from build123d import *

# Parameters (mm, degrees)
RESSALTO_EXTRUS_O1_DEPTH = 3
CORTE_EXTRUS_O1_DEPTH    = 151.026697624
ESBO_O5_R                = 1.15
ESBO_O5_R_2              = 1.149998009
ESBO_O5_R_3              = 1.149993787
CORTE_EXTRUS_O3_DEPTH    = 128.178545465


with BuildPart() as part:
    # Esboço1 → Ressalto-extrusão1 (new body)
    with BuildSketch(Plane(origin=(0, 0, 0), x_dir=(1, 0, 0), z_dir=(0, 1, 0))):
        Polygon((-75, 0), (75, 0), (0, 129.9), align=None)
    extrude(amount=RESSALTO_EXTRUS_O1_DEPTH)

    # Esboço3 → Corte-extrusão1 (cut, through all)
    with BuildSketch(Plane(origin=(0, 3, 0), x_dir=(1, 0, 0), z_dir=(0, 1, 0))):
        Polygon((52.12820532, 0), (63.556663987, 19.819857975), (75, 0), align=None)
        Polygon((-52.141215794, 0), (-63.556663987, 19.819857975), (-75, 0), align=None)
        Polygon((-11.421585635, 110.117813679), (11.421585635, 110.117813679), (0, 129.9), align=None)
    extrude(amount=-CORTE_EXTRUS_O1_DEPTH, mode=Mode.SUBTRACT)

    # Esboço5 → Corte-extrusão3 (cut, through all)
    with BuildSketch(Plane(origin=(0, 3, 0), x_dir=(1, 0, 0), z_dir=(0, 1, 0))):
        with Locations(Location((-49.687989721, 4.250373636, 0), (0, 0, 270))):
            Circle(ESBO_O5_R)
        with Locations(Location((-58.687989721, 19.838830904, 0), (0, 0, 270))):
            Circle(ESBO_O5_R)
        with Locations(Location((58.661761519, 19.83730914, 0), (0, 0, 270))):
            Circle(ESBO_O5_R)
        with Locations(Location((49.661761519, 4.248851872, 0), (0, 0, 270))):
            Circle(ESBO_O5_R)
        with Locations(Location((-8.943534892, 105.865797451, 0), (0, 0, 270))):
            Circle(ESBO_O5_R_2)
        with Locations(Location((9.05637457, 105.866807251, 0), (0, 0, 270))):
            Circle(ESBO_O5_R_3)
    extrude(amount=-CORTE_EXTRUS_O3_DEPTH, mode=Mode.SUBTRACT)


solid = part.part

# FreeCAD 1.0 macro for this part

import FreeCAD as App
import Part
import Sketcher

V = App.Vector
Q = App.Units.Quantity

doc = App.newDocument("Part")
body = doc.addObject("PartDesign::Body", "Body")

# Sketch on XZ plane
sketch1 = body.newObject("Sketcher::SketchObject", "Sketch")
sketch1.AttachmentSupport = (doc.getObject("XZ_Plane"), [""])
sketch1.MapMode = "FlatFace"
sketch1.addGeometry(Part.LineSegment(V(-75, 0, 0), V(75, 0, 0)), False)
sketch1.addGeometry(Part.LineSegment(V(75, 0, 0), V(0, -130, 0)), False)
sketch1.addGeometry(Part.LineSegment(V(0, -130, 0), V(-75, 0, 0)), False)
sketch1.addConstraint(Sketcher.Constraint("Coincident", 0, 2, 1, 1))
sketch1.addConstraint(Sketcher.Constraint("Coincident", 1, 2, 2, 1))
sketch1.addConstraint(Sketcher.Constraint("Coincident", 2, 2, 0, 1))
sketch1.addConstraint(Sketcher.Constraint("Horizontal", 0))
sketch1.addConstraint(Sketcher.Constraint("Symmetric", 0, 2, 2, 2, -1, 1))
sketch1.addConstraint(Sketcher.Constraint("PointOnObject", 1, 2, -2))
sketch1.addConstraint(Sketcher.Constraint("DistanceX", 0, 1, 0, 2, Q("150 mm")))
sketch1.addConstraint(Sketcher.Constraint("DistanceY", 1, 2, -1, 1, Q("129.9 mm")))
pad1 = body.newObject("PartDesign::Pad", "Pad")
pad1.Profile = sketch1
pad1.Length = 3
pad1.Reversed = True

# Sketch on XZ plane
sketch2 = body.newObject("Sketcher::SketchObject", "Sketch001")
sketch2.AttachmentSupport = (doc.getObject("XZ_Plane"), [""])
sketch2.MapMode = "FlatFace"
sketch2.AttachmentOffset = App.Placement(V(0, 0, -3), App.Rotation())
sketch2.addGeometry(Part.LineSegment(V(64, -20, 0), V(52, 0, 0)), False)
sketch2.addGeometry(Part.LineSegment(V(52, 0, 0), V(75, 0, 0)), False)
sketch2.addGeometry(Part.LineSegment(V(75, 0, 0), V(64, -20, 0)), False)
sketch2.addGeometry(Part.LineSegment(V(-52, 0, 0), V(-64, -20, 0)), False)
sketch2.addGeometry(Part.LineSegment(V(-64, -20, 0), V(-75, 0, 0)), False)
sketch2.addGeometry(Part.LineSegment(V(-75, 0, 0), V(-52, 0, 0)), False)
sketch2.addGeometry(Part.LineSegment(V(-11, -110, 0), V(11, -110, 0)), False)
sketch2.addGeometry(Part.LineSegment(V(11, -110, 0), V(0, -130, 0)), False)
sketch2.addGeometry(Part.LineSegment(V(0, -130, 0), V(-11, -110, 0)), False)
sketch2.addConstraint(Sketcher.Constraint("Coincident", 0, 2, 1, 1))
sketch2.addConstraint(Sketcher.Constraint("Coincident", 1, 2, 2, 1))
sketch2.addConstraint(Sketcher.Constraint("Coincident", 2, 2, 0, 1))
sketch2.addConstraint(Sketcher.Constraint("Coincident", 3, 2, 4, 1))
sketch2.addConstraint(Sketcher.Constraint("Coincident", 4, 2, 5, 1))
sketch2.addConstraint(Sketcher.Constraint("Coincident", 5, 2, 3, 1))
sketch2.addConstraint(Sketcher.Constraint("Coincident", 6, 2, 7, 1))
sketch2.addConstraint(Sketcher.Constraint("Coincident", 7, 2, 8, 1))
sketch2.addConstraint(Sketcher.Constraint("Coincident", 8, 2, 6, 1))
sketch2.addConstraint(Sketcher.Constraint("Horizontal", 1))
sketch2.addConstraint(Sketcher.Constraint("Horizontal", 5))
sketch2.addConstraint(Sketcher.Constraint("Horizontal", 6))
sketch2.addConstraint(Sketcher.Constraint("Symmetric", 1, 2, 4, 2, -1, 1))
sketch2.addConstraint(Sketcher.Constraint("Symmetric", 2, 2, 3, 2, -2))
sketch2.addConstraint(Sketcher.Constraint("PointOnObject", 0, 2, -1))
sketch2.addConstraint(Sketcher.Constraint("PointOnObject", 7, 2, -2))
sketch2.addConstraint(Sketcher.Constraint("Parallel", 2, 7))
sketch2.addConstraint(Sketcher.Constraint("Parallel", 4, 8))
sketch2.addConstraint(Sketcher.Constraint("DistanceX", -1, 1, 1, 2, Q("75 mm")))
sketch2.addConstraint(Sketcher.Constraint("DistanceY", 7, 2, -1, 1, Q("129.9 mm")))
sketch2.addConstraint(Sketcher.Constraint("DistanceX", 6, 1, 6, 2, Q("22.843171 mm")))
sketch2.addConstraint(Sketcher.Constraint("DistanceX", 5, 2, 6, 2, Q("63.562801 mm")))
sketch2.addConstraint(Sketcher.Constraint("Distance", 2, Q("22.886169 mm")))
sketch2.addConstraint(Sketcher.Constraint("Distance", 7, Q("22.842669 mm")))
sketch2.addConstraint(Sketcher.Constraint("DistanceX", 1, 1, 1, 2, Q("22.871795 mm")))
pocket1 = body.newObject("PartDesign::Pocket", "Pocket")
pocket1.Profile = sketch2
pocket1.Type = "ThroughAll"
pocket1.Reversed = True

# Sketch on XZ plane
sketch3 = body.newObject("Sketcher::SketchObject", "Sketch002")
sketch3.AttachmentSupport = (doc.getObject("XZ_Plane"), [""])
sketch3.MapMode = "FlatFace"
sketch3.AttachmentOffset = App.Placement(V(0, 0, -3), App.Rotation())
sketch3.addGeometry(Part.Circle(V(-49.7, -4.3, 0), V(0, 0, 1), 1.1), False)
sketch3.addGeometry(Part.Circle(V(-58.7, -19.8, 0), V(0, 0, 1), 1.1), False)
sketch3.addGeometry(Part.Circle(V(58.7, -19.8, 0), V(0, 0, 1), 1.1), False)
sketch3.addGeometry(Part.Circle(V(49.7, -4.2, 0), V(0, 0, 1), 1.1), False)
sketch3.addGeometry(Part.Circle(V(-8.9, -105.9, 0), V(0, 0, 1), 1.1), False)
sketch3.addGeometry(Part.Circle(V(9.1, -105.9, 0), V(0, 0, 1), 1.1), False)
sketch3.addConstraint(Sketcher.Constraint("Equal", 0, 1))
sketch3.addConstraint(Sketcher.Constraint("Equal", 1, 2))
sketch3.addConstraint(Sketcher.Constraint("Equal", 2, 3))
sketch3.addConstraint(Sketcher.Constraint("Equal", 3, 4))
sketch3.addConstraint(Sketcher.Constraint("Diameter", 0, Q("2.3 mm")))
sketch3.addConstraint(Sketcher.Constraint("DistanceX", 1, 3, 0, 3, Q("9 mm")))
sketch3.addConstraint(Sketcher.Constraint("DistanceX", 3, 3, 2, 3, Q("9 mm")))
sketch3.addConstraint(Sketcher.Constraint("Diameter", 5, Q("2.299988 mm")))
sketch3.addConstraint(Sketcher.Constraint("DistanceY", 5, 3, 2, 3, Q("86.029498 mm")))
sketch3.addConstraint(Sketcher.Constraint("DistanceX", 0, 3, -1, 1, Q("49.68799 mm")))
sketch3.addConstraint(Sketcher.Constraint("DistanceY", 1, 3, -1, 1, Q("19.838831 mm")))
sketch3.addConstraint(Sketcher.Constraint("DistanceX", -1, 1, 2, 3, Q("58.661762 mm")))
sketch3.addConstraint(Sketcher.Constraint("DistanceY", 2, 3, -1, 1, Q("19.837309 mm")))
sketch3.addConstraint(Sketcher.Constraint("DistanceY", 3, 3, -1, 1, Q("4.248852 mm")))
sketch3.addConstraint(Sketcher.Constraint("DistanceY", 0, 3, 3, 3, Q("0.001522 mm")))
sketch3.addConstraint(Sketcher.Constraint("DistanceY", 4, 3, 2, 3, Q("86.028488 mm")))
sketch3.addConstraint(Sketcher.Constraint("DistanceX", 4, 3, 5, 3, Q("17.999909 mm")))
sketch3.addConstraint(Sketcher.Constraint("DistanceX", 4, 3, -1, 1, Q("8.943535 mm")))
pocket2 = body.newObject("PartDesign::Pocket", "Pocket001")
pocket2.Profile = sketch3
pocket2.Type = "ThroughAll"
pocket2.Reversed = True

doc.recompute()
